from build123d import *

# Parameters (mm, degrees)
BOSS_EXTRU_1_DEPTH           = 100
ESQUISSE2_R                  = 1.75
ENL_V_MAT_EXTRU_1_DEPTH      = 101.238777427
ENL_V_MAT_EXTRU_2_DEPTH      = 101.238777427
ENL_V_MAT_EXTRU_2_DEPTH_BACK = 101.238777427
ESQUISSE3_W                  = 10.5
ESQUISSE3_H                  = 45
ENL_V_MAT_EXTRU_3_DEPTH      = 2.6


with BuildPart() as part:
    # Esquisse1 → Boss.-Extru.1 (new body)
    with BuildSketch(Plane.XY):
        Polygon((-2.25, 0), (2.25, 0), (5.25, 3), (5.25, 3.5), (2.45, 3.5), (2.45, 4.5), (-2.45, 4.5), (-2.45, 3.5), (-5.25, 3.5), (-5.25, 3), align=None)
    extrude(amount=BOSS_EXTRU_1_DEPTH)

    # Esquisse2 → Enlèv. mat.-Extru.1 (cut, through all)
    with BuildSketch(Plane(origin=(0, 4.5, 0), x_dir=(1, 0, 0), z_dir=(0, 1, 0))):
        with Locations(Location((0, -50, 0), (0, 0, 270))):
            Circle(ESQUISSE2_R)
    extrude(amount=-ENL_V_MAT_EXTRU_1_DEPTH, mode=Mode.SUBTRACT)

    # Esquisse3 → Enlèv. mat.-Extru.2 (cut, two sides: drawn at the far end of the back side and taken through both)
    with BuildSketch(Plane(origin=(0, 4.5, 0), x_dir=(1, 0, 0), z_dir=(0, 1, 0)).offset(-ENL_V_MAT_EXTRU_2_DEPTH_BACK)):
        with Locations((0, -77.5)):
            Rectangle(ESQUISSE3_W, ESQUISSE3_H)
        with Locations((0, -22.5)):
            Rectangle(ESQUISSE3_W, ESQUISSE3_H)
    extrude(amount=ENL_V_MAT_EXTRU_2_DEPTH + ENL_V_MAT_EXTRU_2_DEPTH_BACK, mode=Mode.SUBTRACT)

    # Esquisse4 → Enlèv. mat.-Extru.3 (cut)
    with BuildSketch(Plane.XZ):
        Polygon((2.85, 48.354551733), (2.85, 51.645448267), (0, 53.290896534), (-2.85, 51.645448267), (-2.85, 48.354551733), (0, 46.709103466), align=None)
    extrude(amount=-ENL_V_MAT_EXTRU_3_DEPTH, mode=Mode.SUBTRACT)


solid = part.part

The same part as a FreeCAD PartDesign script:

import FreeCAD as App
import Part
import Sketcher
from FreeCAD import Vector
Q = App.Units.Quantity


def add_polygon(sketch, points):
    """Adds a closed chain of lines whose ends are joined by coincident constraints."""
    first, n = sketch.GeometryCount, len(points)
    for a, b in zip(points, points[1:] + points[:1]):
        sketch.addGeometry(Part.LineSegment(App.Vector(*a, 0), App.Vector(*b, 0)), False)
    for i in range(n):
        sketch.addConstraint(Sketcher.Constraint("Coincident", first + i, 2, first + (i + 1) % n, 1))

doc = App.newDocument("Part")
body = doc.addObject("PartDesign::Body", "Body")

sketch1 = doc.addObject("Sketcher::SketchObject", "Sketch")
body.addObject(sketch1)
sketch1.AttachmentSupport = (doc.XY_Plane, [""])
sketch1.MapMode = "FlatFace"
add_polygon(sketch1, [(-2.2, 0), (2.2, 0), (5.2, 3), (5.2, 3.5), (2.5, 3.5), (2.5, 4.5), (-2.5, 4.5), (-2.5, 3.5), (-5.2, 3.5), (-5.2, 3)])
sketch1.addConstraint([
    Sketcher.Constraint("Horizontal", 0),
    Sketcher.Constraint("Vertical", 2),
    Sketcher.Constraint("Horizontal", 3),
    Sketcher.Constraint("Vertical", 4),
    Sketcher.Constraint("Horizontal", 5),
    Sketcher.Constraint("Vertical", 6),
    Sketcher.Constraint("Horizontal", 7),
    Sketcher.Constraint("Vertical", 8),
    Sketcher.Constraint("Symmetric", 0, 2, 9, 2, -1, 1),
    Sketcher.Constraint("Symmetric", 3, 2, 6, 2, -2),
    Sketcher.Constraint("Symmetric", 1, 2, 8, 2, -2),
    Sketcher.Constraint("Perpendicular", 1, 9),
    Sketcher.Constraint("DistanceY", 4, 1, 4, 2, 1.0),
    Sketcher.Constraint("DistanceX", 0, 1, 0, 2, 4.5),
    Sketcher.Constraint("DistanceX", 3, 2, 3, 1, 2.8),
    Sketcher.Constraint("DistanceX", 5, 2, 5, 1, 4.9),
    Sketcher.Constraint("DistanceY", 2, 1, 2, 2, 0.5),
])
pad1 = doc.addObject("PartDesign::Pad", "Pad")
body.addObject(pad1)
pad1.Profile = sketch1
pad1.Length = 100

sketch2 = doc.addObject("Sketcher::SketchObject", "Sketch001")
body.addObject(sketch2)
sketch2.AttachmentSupport = (doc.XZ_Plane, [""])
sketch2.MapMode = "FlatFace"
sketch2.AttachmentOffset = App.Placement(Vector(0, 0, -4.5), App.Rotation())
sketch2.addGeometry(Part.Circle(Vector(0, 50, 0), Vector(0, 0, 1), 1.8), False)
sketch2.addConstraint([
    Sketcher.Constraint("PointOnObject", 0, 3, -2),
    Sketcher.Constraint("Diameter", 0, 3.5),
    Sketcher.Constraint("DistanceY", -1, 1, 0, 3, 50.0),
])
pocket1 = doc.addObject("PartDesign::Pocket", "Pocket")
body.addObject(pocket1)
pocket1.Profile = sketch2
pocket1.Type = "ThroughAll"
pocket1.Reversed = True

sketch3 = doc.addObject("Sketcher::SketchObject", "Sketch002")
body.addObject(sketch3)
sketch3.AttachmentSupport = (doc.XZ_Plane, [""])
sketch3.MapMode = "FlatFace"
sketch3.AttachmentOffset = App.Placement(Vector(0, 0, -4.5), App.Rotation())
add_polygon(sketch3, [(-5, 55), (-5, 100), (5, 100), (5, 55)])
add_polygon(sketch3, [(-5, 0), (-5, 45), (5, 45), (5, 0)])
sketch3.addConstraint([
    Sketcher.Constraint("Vertical", 0),
    Sketcher.Constraint("Horizontal", 1),
    Sketcher.Constraint("Vertical", 2),
    Sketcher.Constraint("Horizontal", 3),
    Sketcher.Constraint("Vertical", 4),
    Sketcher.Constraint("Horizontal", 5),
    Sketcher.Constraint("Vertical", 6),
    Sketcher.Constraint("Horizontal", 7),
    Sketcher.Constraint("Symmetric", 6, 2, 7, 2, -1, 1),
    Sketcher.Constraint("Vertical", 3, 2, 4, 2),
    Sketcher.Constraint("Vertical", 2, 2, 5, 2),
    Sketcher.Constraint("Equal", 2, 4),
    Sketcher.Constraint("DistanceY", 0, 1, 0, 2, 45.0),
    Sketcher.Constraint("DistanceX", 1, 1, 1, 2, 10.5),
    Sketcher.Constraint("DistanceY", -1, 1, 0, 2, 100.0),
])
pocket2 = doc.addObject("PartDesign::Pocket", "Pocket001")
body.addObject(pocket2)
pocket2.Profile = sketch3
pocket2.Type = "ThroughAll"
pocket2.Midplane = True

sketch4 = doc.addObject("Sketcher::SketchObject", "Sketch003")
body.addObject(sketch4)
sketch4.AttachmentSupport = (doc.XZ_Plane, [""])
sketch4.MapMode = "FlatFace"
add_polygon(sketch4, [(2.9, 48.4), (2.9, 51.6), (0, 53.3), (-2.9, 51.6), (-2.9, 48.4), (0, 46.7)])
sketch4.addConstraint([
    Sketcher.Constraint("Vertical", 0),
    Sketcher.Constraint("Vertical", 3),
    Sketcher.Constraint("Symmetric", 0, 2, 2, 2, -2),
    Sketcher.Constraint("PointOnObject", 1, 2, -2),
    Sketcher.Constraint("PointOnObject", 4, 2, -2),
    Sketcher.Constraint("Parallel", 1, 4),
    Sketcher.Constraint("Parallel", 2, 5),
    Sketcher.Constraint("Angle", 1, Q("150 deg")),
    Sketcher.Constraint("DistanceX", 2, 2, 0, 2, 5.7),
    Sketcher.Constraint("DistanceY", 0, 1, 0, 2, 3.290897),
    Sketcher.Constraint("DistanceY", -1, 1, 0, 2, 51.645448),
])
pocket3 = doc.addObject("PartDesign::Pocket", "Pocket002")
body.addObject(pocket3)
pocket3.Profile = sketch4
pocket3.Length = 2.6

doc.recompute()
